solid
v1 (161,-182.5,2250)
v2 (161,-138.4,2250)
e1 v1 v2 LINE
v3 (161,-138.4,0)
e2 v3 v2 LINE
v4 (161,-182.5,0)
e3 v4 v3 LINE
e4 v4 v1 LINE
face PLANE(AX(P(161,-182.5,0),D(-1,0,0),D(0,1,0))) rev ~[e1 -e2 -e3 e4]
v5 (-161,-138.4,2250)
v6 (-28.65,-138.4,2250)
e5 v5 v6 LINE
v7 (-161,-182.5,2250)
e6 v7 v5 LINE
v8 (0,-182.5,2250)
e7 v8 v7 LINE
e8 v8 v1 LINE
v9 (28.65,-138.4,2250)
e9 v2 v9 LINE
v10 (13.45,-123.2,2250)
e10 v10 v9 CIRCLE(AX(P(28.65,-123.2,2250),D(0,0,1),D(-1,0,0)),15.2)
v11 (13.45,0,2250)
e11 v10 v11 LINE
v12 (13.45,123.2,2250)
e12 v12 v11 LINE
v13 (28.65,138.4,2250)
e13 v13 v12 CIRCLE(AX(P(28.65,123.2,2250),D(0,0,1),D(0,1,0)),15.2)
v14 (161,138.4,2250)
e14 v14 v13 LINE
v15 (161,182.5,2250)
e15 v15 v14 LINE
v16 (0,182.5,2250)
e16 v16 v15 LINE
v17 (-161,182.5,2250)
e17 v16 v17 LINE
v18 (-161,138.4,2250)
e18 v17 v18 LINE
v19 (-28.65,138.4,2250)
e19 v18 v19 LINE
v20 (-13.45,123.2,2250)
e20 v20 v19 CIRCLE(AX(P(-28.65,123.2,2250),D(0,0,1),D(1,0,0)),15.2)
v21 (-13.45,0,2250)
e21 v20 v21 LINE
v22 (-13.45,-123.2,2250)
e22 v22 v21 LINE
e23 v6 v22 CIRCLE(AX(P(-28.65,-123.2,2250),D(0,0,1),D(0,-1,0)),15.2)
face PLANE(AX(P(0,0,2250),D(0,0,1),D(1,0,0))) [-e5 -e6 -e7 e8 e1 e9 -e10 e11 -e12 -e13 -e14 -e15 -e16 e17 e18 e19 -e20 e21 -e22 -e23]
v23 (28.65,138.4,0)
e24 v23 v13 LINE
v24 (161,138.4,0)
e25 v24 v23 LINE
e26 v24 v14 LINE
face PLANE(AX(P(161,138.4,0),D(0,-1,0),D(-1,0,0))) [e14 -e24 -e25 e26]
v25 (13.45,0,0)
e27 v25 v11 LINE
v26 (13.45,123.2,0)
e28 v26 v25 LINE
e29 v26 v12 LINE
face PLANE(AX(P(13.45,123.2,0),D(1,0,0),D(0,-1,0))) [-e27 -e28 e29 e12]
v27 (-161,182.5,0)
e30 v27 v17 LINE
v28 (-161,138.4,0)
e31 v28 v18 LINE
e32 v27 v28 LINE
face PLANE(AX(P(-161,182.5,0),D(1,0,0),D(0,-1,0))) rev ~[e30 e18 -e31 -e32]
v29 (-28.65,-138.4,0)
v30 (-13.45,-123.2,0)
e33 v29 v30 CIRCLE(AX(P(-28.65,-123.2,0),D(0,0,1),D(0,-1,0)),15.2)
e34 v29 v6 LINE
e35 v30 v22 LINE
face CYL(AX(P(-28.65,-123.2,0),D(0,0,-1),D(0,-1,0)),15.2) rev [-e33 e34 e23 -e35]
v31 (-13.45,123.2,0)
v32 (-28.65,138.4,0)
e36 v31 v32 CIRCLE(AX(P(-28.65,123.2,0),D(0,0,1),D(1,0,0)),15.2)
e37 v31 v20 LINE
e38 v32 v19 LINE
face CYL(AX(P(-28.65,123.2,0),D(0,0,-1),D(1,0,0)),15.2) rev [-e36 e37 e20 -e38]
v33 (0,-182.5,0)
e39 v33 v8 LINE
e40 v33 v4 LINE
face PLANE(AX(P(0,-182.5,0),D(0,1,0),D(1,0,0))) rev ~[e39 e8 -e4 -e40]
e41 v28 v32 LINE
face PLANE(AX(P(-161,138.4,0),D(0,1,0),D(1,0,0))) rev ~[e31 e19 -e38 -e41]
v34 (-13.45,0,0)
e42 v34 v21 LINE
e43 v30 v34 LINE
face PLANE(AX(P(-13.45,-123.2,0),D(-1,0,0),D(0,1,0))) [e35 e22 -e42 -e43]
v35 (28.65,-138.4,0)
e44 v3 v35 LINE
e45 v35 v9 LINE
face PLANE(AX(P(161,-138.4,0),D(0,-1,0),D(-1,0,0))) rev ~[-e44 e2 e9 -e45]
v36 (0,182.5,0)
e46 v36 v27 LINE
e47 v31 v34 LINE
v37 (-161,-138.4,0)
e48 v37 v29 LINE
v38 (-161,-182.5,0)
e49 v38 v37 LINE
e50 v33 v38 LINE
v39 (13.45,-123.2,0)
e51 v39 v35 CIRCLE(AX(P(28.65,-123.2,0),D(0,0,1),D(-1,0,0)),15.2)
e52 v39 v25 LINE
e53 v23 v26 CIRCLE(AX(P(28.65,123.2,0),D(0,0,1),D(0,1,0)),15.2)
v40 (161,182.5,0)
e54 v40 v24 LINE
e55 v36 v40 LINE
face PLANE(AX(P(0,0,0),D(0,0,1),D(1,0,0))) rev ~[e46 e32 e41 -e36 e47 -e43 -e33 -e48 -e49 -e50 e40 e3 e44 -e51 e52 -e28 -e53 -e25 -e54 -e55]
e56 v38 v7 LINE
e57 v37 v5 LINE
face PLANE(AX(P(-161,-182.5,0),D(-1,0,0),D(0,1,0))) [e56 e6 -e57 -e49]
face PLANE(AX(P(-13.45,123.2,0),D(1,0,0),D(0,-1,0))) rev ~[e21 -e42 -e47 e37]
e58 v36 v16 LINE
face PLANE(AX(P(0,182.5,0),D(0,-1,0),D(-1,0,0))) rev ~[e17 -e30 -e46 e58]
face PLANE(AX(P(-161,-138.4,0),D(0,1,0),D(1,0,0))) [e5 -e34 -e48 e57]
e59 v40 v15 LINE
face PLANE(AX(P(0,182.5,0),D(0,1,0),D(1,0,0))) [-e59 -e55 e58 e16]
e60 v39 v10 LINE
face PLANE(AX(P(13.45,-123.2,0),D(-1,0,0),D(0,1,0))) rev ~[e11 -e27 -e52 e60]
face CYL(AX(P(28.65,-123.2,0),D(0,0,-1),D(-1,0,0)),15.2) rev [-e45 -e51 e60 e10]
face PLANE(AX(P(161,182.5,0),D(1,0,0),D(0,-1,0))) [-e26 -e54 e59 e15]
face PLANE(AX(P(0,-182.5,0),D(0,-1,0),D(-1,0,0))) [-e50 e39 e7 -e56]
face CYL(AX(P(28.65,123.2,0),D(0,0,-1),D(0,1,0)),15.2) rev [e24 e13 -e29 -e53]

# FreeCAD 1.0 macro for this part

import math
import FreeCAD as App
import Part
import Sketcher
Q = App.Units.Quantity

doc = App.newDocument("Part")
params = doc.addObject("Spreadsheet::Sheet", "Params")
for row, (alias, value) in enumerate([
    ("sketch1_radius", "15.2 mm"),
    ("sketch1_height", "44.1 mm"),
    ("pad1_length", "2250 mm"),
], start=1):
    params.set(f"A{row}", alias)
    params.set(f"B{row}", "=" + value)
    params.setAlias(f"B{row}", alias)

body = doc.addObject("PartDesign::Body", "Body")

# Sketch on XY plane
sketch1 = body.newObject("Sketcher::SketchObject", "Sketch")
sketch1.AttachmentSupport = (doc.getObject("XY_Plane"), [""])
sketch1.MapMode = "FlatFace"
sketch1.addGeometry(Part.LineSegment(App.Vector(-161, -138, 0), App.Vector(-161, -182, 0)), False)
sketch1.addGeometry(Part.LineSegment(App.Vector(-161, -182, 0), App.Vector(161, -182, 0)), False)
sketch1.addGeometry(Part.LineSegment(App.Vector(161, -182, 0), App.Vector(161, -138, 0)), False)
sketch1.addGeometry(Part.LineSegment(App.Vector(161, -138, 0), App.Vector(29, -138, 0)), False)
sketch1.addGeometry(Part.ArcOfCircle(Part.Circle(App.Vector(29, -123, 0), App.Vector(0, 0, 1), 15), math.radians(180), math.radians(270)), False)
sketch1.addGeometry(Part.LineSegment(App.Vector(13, -123, 0), App.Vector(13, 123, 0)), False)
sketch1.addGeometry(Part.ArcOfCircle(Part.Circle(App.Vector(29, 123, 0), App.Vector(0, 0, 1), 15), math.radians(90), math.radians(180)), False)
sketch1.addGeometry(Part.LineSegment(App.Vector(29, 138, 0), App.Vector(161, 138, 0)), False)
sketch1.addGeometry(Part.LineSegment(App.Vector(161, 138, 0), App.Vector(161, 182, 0)), False)
sketch1.addGeometry(Part.LineSegment(App.Vector(161, 182, 0), App.Vector(-161, 182, 0)), False)
sketch1.addGeometry(Part.LineSegment(App.Vector(-161, 182, 0), App.Vector(-161, 138, 0)), False)
sketch1.addGeometry(Part.LineSegment(App.Vector(-161, 138, 0), App.Vector(-29, 138, 0)), False)
sketch1.addGeometry(Part.ArcOfCircle(Part.Circle(App.Vector(-29, 123, 0), App.Vector(0, 0, 1), 15), math.radians(0), math.radians(90)), False)
sketch1.addGeometry(Part.LineSegment(App.Vector(-13, 123, 0), App.Vector(-13, -123, 0)), False)
sketch1.addGeometry(Part.ArcOfCircle(Part.Circle(App.Vector(-29, -123, 0), App.Vector(0, 0, 1), 15), math.radians(-90), math.radians(0)), False)
sketch1.addGeometry(Part.LineSegment(App.Vector(-29, -138, 0), App.Vector(-161, -138, 0)), False)
sketch1.addConstraint(Sketcher.Constraint("Coincident", 0, 2, 1, 1))
sketch1.addConstraint(Sketcher.Constraint("Coincident", 1, 2, 2, 1))
sketch1.addConstraint(Sketcher.Constraint("Coincident", 2, 2, 3, 1))
sketch1.addConstraint(Sketcher.Constraint("Tangent", 3, 2, 4, 2))
sketch1.addConstraint(Sketcher.Constraint("Tangent", 4, 1, 5, 1))
sketch1.addConstraint(Sketcher.Constraint("Tangent", 5, 2, 6, 2))
sketch1.addConstraint(Sketcher.Constraint("Tangent", 6, 1, 7, 1))
sketch1.addConstraint(Sketcher.Constraint("Coincident", 7, 2, 8, 1))
sketch1.addConstraint(Sketcher.Constraint("Coincident", 8, 2, 9, 1))
sketch1.addConstraint(Sketcher.Constraint("Coincident", 9, 2, 10, 1))
sketch1.addConstraint(Sketcher.Constraint("Coincident", 10, 2, 11, 1))
sketch1.addConstraint(Sketcher.Constraint("Tangent", 11, 2, 12, 2))
sketch1.addConstraint(Sketcher.Constraint("Tangent", 12, 1, 13, 1))
sketch1.addConstraint(Sketcher.Constraint("Tangent", 13, 2, 14, 2))
sketch1.addConstraint(Sketcher.Constraint("Tangent", 14, 1, 15, 1))
sketch1.addConstraint(Sketcher.Constraint("Coincident", 15, 2, 0, 1))
sketch1.addConstraint(Sketcher.Constraint("Vertical", 0))
sketch1.addConstraint(Sketcher.Constraint("Horizontal", 1))
sketch1.addConstraint(Sketcher.Constraint("Vertical", 2))
sketch1.addConstraint(Sketcher.Constraint("Horizontal", 3))
sketch1.addConstraint(Sketcher.Constraint("Vertical", 5))
sketch1.addConstraint(Sketcher.Constraint("Horizontal", 7))
sketch1.addConstraint(Sketcher.Constraint("Vertical", 8))
sketch1.addConstraint(Sketcher.Constraint("Horizontal", 9))
sketch1.addConstraint(Sketcher.Constraint("Vertical", 10))
sketch1.addConstraint(Sketcher.Constraint("Horizontal", 11))
sketch1.addConstraint(Sketcher.Constraint("Vertical", 13))
sketch1.addConstraint(Sketcher.Constraint("Horizontal", 15))
sketch1.addConstraint(Sketcher.Constraint("Equal", 4, 6))
sketch1.addConstraint(Sketcher.Constraint("Equal", 6, 12))
sketch1.addConstraint(Sketcher.Constraint("Equal", 12, 14))
sketch1.addConstraint(Sketcher.Constraint("Symmetric", 4, 3, 12, 3, -1, 1))
sketch1.addConstraint(Sketcher.Constraint("Symmetric", 0, 2, 8, 2, -1, 1))
sketch1.addConstraint(Sketcher.Constraint("Symmetric", 7, 2, 10, 2, -2))
sketch1.addConstraint(Sketcher.Constraint("Symmetric", 2, 2, 15, 2, -2))
sketch1.addConstraint(Sketcher.Constraint("Radius", 4, Q("15.2 mm")))
sketch1.addConstraint(Sketcher.Constraint("DistanceY", 0, 2, 0, 1, Q("44.1 mm")))
sketch1.addConstraint(Sketcher.Constraint("DistanceX", 0, 2, -1, 1, Q("161 mm")))
sketch1.addConstraint(Sketcher.Constraint("DistanceY", 0, 2, -1, 1, Q("182.5 mm")))
sketch1.addConstraint(Sketcher.Constraint("DistanceX", -1, 1, 4, 1, Q("13.45 mm")))
sketch1.setExpression("Constraints[35]", "Params.sketch1_radius")
sketch1.setExpression("Constraints[36]", "Params.sketch1_height")
pad1 = body.newObject("PartDesign::Pad", "Pad")
pad1.Profile = sketch1
pad1.setExpression("Length", "Params.pad1_length")

doc.recompute()
